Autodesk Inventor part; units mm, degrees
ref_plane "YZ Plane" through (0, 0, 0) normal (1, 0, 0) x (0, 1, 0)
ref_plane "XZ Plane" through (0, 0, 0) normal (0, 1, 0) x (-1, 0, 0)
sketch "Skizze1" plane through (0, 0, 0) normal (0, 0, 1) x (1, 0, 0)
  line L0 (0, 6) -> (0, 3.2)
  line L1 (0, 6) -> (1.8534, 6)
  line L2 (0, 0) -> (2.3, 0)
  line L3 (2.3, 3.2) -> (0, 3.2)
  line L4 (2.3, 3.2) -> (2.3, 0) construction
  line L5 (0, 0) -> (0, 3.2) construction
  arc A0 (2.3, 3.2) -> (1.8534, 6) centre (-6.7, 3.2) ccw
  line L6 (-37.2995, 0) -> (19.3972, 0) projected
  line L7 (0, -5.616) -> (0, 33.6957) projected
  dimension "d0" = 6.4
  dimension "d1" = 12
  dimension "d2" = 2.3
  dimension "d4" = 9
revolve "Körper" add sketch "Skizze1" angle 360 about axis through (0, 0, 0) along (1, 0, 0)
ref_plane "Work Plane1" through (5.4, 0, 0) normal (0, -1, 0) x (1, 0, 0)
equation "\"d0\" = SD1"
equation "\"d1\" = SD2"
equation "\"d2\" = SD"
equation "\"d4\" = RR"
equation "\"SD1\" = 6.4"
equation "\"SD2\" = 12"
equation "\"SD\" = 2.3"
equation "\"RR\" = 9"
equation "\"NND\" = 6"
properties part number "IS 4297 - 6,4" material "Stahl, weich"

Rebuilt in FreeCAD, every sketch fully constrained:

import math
import FreeCAD as App
import Part
import Sketcher
from FreeCAD import Vector
Q = App.Units.Quantity

doc = App.newDocument("Part")
params = doc.addObject("Spreadsheet::Sheet", "Params")
for row, (alias, value) in enumerate([
    ("sketch1_width", "2.3 mm"),
    ("sketch1_height", "2.8 mm"),
    ("revolution_angle", "360 deg"),
], start=1):
    params.set(f"A{row}", alias)
    params.set(f"B{row}", "=" + value)
    params.setAlias(f"B{row}", alias)

body = doc.addObject("PartDesign::Body", "Body")

# Sketch on XY plane
sketch1 = body.newObject("Sketcher::SketchObject", "Sketch")
sketch1.AttachmentSupport = (doc.getObject("XY_Plane"), [""])
sketch1.MapMode = "FlatFace"
sketch1.addGeometry([
    Part.LineSegment(Vector(1.9, 6, 0), Vector(0, 6, 0)),
    Part.LineSegment(Vector(0, 6, 0), Vector(0, 3.2, 0)),
    Part.LineSegment(Vector(0, 3.2, 0), Vector(2.3, 3.2, 0)),
    Part.ArcOfCircle(Part.Circle(Vector(-6.7, 3.2, 0), Vector(0, 0, 1), 9), math.radians(0), math.radians(18.12)),
], False)
sketch1.addConstraint([
    Sketcher.Constraint("Coincident", 0, 2, 1, 1),
    Sketcher.Constraint("Coincident", 1, 2, 2, 1),
    Sketcher.Constraint("Coincident", 2, 2, 3, 1),
    Sketcher.Constraint("Coincident", 3, 2, 0, 1),
    Sketcher.Constraint("Horizontal", 0),
    Sketcher.Constraint("Vertical", 1),
    Sketcher.Constraint("Horizontal", 2),
    Sketcher.Constraint("PointOnObject", 0, 2, -2),
    Sketcher.Constraint("Horizontal", 3, 3, 1, 2),
    Sketcher.Constraint("DistanceX", 2, 1, 2, 2, Q("2.3 mm")),
    Sketcher.Constraint("DistanceY", 1, 2, 1, 1, Q("2.8 mm")),
    Sketcher.Constraint("DistanceY", -1, 1, 0, 2, Q("6 mm")),
    Sketcher.Constraint("Radius", 3, Q("9.0014 mm")),
])
sketch1.setExpression("Constraints[9]", "Params.sketch1_width")
sketch1.setExpression("Constraints[10]", "Params.sketch1_height")
revolution = body.newObject("PartDesign::Revolution", "Revolution")
revolution.Profile = sketch1
revolution.ReferenceAxis = (sketch1, ["H_Axis"])
revolution.setExpression("Angle", "Params.revolution_angle")

doc.recompute()
